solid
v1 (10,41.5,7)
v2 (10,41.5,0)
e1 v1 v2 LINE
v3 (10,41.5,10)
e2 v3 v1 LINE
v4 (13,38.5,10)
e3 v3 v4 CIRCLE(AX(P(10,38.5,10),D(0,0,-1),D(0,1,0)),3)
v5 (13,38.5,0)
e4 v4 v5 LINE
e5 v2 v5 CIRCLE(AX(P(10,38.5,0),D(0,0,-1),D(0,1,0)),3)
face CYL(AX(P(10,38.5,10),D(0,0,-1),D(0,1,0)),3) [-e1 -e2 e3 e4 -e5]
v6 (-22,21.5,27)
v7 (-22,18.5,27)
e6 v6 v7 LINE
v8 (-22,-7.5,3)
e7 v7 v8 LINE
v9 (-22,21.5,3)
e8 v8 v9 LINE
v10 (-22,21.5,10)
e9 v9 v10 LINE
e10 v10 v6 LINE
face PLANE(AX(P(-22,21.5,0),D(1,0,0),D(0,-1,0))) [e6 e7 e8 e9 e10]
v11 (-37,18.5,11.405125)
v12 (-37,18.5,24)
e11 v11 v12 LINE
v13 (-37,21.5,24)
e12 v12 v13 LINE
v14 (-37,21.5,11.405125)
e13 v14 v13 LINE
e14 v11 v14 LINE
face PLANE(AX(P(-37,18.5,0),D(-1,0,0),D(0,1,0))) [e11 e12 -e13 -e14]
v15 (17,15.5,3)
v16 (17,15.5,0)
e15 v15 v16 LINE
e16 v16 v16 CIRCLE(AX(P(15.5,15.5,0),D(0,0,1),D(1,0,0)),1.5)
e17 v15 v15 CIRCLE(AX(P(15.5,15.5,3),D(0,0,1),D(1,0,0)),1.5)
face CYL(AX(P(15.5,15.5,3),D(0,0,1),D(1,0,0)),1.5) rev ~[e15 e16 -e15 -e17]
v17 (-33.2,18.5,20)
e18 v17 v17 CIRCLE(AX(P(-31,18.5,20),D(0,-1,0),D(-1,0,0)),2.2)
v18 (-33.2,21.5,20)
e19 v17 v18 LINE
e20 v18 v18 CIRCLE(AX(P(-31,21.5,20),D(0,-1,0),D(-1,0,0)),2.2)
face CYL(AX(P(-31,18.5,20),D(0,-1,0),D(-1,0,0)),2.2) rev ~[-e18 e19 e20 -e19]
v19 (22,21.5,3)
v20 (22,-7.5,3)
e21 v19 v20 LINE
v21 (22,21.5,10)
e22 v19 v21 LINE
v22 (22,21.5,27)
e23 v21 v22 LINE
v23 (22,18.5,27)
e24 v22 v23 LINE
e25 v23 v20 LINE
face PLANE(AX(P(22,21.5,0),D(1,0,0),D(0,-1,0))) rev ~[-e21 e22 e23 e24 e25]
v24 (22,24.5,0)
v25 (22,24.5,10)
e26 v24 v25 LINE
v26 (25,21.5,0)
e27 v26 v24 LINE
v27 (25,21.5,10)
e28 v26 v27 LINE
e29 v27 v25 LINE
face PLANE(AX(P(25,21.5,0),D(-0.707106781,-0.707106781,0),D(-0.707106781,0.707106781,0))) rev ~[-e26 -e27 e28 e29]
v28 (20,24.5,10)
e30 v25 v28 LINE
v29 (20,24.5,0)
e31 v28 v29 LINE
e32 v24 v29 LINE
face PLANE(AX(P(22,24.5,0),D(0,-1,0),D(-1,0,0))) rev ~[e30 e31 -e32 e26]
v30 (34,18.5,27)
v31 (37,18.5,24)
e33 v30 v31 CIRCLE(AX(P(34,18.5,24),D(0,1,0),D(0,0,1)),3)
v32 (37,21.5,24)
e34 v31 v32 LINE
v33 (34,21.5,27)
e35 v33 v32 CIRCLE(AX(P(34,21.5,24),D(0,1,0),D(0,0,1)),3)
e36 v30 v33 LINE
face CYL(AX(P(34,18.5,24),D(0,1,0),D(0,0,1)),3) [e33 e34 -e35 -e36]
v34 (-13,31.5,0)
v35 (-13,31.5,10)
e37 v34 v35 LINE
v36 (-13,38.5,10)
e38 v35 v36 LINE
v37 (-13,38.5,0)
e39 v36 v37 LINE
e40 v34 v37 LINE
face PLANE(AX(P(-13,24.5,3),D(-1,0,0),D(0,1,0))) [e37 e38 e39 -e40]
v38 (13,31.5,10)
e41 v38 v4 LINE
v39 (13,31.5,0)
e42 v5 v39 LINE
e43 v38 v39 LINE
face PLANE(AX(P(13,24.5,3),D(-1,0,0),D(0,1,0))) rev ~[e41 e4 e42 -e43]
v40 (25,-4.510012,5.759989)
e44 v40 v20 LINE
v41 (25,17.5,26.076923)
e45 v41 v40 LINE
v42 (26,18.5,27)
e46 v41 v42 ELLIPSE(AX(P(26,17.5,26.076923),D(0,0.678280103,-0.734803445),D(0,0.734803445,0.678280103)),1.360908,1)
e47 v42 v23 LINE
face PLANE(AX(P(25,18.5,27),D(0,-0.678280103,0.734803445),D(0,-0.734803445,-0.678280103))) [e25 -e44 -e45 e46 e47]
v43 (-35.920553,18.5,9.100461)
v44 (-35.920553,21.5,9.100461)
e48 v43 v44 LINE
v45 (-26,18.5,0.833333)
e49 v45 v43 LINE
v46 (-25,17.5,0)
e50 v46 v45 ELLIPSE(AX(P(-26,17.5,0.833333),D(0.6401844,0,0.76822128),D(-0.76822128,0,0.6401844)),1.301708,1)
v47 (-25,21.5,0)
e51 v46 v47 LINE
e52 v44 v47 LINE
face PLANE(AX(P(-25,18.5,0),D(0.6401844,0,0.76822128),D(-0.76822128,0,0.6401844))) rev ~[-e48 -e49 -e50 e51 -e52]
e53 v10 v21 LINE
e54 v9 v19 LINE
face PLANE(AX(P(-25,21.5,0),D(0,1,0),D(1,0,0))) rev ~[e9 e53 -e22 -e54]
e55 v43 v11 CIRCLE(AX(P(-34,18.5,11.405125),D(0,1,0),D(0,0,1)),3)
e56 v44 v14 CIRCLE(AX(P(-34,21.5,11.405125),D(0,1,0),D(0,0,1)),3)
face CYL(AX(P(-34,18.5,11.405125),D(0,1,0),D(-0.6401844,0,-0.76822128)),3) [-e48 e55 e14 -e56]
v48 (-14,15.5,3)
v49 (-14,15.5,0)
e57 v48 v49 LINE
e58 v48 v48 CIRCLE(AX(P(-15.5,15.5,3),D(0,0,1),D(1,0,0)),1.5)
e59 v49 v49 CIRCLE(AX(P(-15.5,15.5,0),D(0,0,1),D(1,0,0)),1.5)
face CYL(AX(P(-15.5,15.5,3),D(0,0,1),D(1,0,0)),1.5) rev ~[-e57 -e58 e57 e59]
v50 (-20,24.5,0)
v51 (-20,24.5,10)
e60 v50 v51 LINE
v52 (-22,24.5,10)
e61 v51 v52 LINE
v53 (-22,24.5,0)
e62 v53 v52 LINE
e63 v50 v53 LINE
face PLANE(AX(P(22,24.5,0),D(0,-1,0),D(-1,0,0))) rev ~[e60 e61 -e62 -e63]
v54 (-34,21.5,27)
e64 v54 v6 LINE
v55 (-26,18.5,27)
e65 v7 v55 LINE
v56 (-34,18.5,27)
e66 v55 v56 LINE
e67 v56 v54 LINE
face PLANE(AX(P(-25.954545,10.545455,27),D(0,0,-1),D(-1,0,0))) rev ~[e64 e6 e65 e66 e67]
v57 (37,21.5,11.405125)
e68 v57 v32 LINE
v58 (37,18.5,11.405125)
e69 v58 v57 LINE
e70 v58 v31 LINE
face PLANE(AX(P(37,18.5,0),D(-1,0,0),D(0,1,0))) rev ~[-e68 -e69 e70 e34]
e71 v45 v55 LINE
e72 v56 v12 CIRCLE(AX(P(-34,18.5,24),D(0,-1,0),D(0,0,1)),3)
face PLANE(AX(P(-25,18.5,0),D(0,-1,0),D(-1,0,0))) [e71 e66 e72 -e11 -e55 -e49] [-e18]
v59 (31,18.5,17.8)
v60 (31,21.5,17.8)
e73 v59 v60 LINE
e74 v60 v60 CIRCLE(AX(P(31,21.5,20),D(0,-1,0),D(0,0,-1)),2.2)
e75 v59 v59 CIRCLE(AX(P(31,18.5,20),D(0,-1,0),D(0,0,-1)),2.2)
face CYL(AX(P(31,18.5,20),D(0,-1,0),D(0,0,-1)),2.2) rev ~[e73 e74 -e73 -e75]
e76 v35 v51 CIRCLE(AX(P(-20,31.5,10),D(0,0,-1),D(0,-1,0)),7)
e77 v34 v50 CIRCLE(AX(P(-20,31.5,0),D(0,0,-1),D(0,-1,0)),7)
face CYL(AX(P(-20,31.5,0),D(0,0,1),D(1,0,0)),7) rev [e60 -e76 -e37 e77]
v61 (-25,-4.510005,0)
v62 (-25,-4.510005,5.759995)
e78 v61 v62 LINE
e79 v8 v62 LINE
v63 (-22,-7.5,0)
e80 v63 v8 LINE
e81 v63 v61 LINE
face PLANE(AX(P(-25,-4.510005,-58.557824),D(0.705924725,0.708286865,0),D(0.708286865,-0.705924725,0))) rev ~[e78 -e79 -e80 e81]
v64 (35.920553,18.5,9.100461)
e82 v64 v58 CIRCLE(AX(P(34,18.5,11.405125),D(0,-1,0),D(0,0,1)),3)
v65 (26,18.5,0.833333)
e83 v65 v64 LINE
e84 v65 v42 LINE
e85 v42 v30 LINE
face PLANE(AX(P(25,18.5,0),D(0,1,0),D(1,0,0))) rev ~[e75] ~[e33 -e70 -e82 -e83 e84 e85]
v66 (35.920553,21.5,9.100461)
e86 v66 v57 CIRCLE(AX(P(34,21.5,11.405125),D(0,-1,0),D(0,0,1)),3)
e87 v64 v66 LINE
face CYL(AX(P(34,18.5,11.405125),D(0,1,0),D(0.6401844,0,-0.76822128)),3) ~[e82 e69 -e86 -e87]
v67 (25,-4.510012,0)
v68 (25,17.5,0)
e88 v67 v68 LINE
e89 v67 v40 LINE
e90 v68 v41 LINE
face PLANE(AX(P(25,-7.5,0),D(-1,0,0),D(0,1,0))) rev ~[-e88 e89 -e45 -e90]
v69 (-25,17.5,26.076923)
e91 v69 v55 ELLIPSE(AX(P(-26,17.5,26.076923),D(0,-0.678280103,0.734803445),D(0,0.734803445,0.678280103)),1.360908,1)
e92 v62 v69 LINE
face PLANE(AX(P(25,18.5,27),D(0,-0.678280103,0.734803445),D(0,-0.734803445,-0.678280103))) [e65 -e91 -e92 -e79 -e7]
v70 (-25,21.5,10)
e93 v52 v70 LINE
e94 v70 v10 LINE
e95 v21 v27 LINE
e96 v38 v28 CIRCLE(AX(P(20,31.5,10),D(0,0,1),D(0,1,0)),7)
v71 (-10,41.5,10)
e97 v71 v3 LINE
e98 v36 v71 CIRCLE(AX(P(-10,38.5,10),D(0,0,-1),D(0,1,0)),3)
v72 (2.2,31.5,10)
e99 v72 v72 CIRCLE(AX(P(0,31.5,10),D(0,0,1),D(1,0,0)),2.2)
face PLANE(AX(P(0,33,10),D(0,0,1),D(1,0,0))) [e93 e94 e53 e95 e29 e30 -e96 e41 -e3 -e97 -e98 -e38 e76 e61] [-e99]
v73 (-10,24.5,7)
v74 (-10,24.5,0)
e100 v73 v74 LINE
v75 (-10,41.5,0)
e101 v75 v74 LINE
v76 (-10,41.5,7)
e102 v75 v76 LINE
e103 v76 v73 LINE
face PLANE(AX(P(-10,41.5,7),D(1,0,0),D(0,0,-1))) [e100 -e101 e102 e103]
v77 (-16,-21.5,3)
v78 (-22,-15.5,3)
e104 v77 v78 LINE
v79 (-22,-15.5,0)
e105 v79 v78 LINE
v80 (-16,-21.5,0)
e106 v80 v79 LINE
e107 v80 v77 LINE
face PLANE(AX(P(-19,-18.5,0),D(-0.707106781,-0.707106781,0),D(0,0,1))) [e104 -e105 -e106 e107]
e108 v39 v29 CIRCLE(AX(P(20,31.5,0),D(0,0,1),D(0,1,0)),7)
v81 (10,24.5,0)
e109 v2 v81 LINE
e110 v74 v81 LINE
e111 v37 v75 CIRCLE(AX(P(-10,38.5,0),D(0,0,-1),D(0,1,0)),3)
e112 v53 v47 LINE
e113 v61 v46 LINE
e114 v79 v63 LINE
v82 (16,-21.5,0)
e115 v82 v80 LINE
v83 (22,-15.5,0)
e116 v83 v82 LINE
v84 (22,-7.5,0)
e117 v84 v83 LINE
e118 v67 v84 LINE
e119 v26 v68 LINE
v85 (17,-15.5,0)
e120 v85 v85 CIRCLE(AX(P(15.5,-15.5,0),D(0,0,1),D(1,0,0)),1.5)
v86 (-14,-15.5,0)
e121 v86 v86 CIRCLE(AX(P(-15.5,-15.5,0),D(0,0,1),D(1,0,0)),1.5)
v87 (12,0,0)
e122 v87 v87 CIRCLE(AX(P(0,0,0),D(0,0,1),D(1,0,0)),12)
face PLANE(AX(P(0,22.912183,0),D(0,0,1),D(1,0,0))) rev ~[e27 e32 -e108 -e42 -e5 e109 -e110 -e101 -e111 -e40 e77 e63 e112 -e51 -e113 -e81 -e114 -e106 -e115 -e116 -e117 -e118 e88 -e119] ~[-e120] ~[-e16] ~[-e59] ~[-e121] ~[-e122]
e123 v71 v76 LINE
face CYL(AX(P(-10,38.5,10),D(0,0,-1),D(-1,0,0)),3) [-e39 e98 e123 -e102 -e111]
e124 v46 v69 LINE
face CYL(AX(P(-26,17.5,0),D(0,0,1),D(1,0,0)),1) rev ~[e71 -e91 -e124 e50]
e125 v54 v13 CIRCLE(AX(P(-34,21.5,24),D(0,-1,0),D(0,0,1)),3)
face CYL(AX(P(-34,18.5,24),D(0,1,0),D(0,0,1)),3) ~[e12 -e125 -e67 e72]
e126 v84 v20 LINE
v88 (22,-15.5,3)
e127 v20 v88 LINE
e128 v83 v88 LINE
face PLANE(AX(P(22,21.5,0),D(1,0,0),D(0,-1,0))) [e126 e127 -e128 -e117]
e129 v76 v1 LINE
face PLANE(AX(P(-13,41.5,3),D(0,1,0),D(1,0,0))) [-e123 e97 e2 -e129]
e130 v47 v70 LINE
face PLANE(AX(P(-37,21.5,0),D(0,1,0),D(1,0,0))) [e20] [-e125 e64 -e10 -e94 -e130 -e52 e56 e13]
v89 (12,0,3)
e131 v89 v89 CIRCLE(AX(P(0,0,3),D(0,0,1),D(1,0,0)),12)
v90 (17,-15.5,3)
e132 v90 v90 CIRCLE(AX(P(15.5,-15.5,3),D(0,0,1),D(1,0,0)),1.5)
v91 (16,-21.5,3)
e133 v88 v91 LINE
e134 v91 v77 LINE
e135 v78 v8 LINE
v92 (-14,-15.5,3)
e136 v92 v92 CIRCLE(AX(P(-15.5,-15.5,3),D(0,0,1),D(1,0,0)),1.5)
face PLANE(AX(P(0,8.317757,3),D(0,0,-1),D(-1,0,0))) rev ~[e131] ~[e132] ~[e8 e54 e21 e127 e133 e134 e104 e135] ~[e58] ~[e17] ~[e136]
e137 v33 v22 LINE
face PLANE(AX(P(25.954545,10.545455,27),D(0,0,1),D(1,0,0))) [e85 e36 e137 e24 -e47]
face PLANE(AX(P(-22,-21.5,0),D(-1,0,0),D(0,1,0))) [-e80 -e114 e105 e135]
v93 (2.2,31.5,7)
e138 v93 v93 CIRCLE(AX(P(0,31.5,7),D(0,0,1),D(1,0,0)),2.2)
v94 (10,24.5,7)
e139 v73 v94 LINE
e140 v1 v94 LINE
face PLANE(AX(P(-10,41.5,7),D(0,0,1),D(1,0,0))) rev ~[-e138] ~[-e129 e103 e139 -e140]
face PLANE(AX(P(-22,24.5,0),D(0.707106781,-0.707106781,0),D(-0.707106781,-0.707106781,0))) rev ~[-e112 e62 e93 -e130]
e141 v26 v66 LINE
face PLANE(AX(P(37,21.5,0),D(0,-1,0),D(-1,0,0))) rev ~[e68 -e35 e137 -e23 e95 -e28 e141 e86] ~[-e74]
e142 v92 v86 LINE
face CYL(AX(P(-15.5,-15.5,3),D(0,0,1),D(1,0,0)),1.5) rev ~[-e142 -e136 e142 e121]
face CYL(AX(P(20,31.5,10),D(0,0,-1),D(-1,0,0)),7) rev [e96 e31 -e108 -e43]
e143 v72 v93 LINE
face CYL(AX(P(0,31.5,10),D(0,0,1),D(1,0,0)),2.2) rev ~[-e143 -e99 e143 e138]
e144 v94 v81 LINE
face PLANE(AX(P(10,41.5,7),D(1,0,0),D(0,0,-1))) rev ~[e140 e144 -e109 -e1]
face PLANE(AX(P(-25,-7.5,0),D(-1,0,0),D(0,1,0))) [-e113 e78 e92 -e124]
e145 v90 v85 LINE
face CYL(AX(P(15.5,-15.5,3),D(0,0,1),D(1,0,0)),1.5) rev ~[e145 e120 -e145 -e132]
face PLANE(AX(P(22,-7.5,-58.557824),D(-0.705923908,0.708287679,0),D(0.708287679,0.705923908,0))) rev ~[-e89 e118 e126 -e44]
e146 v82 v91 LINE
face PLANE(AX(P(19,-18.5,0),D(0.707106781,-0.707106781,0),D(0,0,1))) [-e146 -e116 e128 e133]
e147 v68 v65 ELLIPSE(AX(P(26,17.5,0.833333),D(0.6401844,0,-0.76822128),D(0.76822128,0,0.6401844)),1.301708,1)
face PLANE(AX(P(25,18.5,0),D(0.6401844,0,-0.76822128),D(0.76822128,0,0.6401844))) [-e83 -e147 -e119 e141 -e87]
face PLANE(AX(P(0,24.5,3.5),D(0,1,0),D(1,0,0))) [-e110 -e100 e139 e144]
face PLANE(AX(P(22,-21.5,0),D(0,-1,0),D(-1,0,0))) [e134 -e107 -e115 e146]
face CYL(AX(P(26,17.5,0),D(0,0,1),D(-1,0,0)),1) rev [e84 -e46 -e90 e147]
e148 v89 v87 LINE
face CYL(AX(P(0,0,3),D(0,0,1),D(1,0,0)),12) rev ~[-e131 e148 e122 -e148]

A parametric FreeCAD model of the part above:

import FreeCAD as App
import Part
import Sketcher
Q = App.Units.Quantity


def edges_at(feature, points):
    """Names of the edges that pass closest to the given points."""
    edges = feature.Shape.Edges
    near = lambda p: min(range(len(edges)), key=lambda i: edges[i].distToShape(Part.Vertex(*p))[0])
    return sorted({f"Edge{near(p) + 1}" for p in points})

doc = App.newDocument("Part")
params = doc.addObject("Spreadsheet::Sheet", "Params")
for row, (alias, value) in enumerate([
    ("sketch1_width", "9 mm"),
    ("sketch1_width2", "44 mm"),
    ("sketch1_height", "20 mm"),
    ("sketch1_height2", "43 mm"),
    ("pad1_length", "3 mm"),
    ("sketch2_width", "15 mm"),
    ("sketch2_width2", "3 mm"),
    ("sketch2_height", "29 mm"),
    ("pad2_length", "27 mm"),
    ("sketch3_width", "12 mm"),
    ("sketch3_width2", "3 mm"),
    ("sketch3_height", "26 mm"),
    ("pad3_length", "27 mm"),
    ("sketch4_width", "50 mm"),
    ("sketch4_width2", "44 mm"),
    ("pad4_length", "10 mm"),
    ("sketch5_width", "26 mm"),
    ("sketch5_height", "17 mm"),
    ("pad5_length", "7 mm"),
    ("sketch6_width", "26 mm"),
    ("sketch6_height", "24 mm"),
    ("sketch7_diameter", "4.4 mm"),
    ("sketch7_width", "12 mm"),
    ("sketch7_height", "10 mm"),
    ("sketch8_width", "20 mm"),
    ("sketch8_height", "7 mm"),
    ("pocket3_length", "17 mm"),
    ("sketch9_diameter", "24 mm"),
    ("sketch9_diameter2", "3 mm"),
    ("sketch10_diameter", "4.4 mm"),
    ("fillet_radius", "7 mm"),
    ("fillet2_radius", "3 mm"),
    ("chamfer_size", "6 mm"),
    ("sketch11_width", "3 mm"),
    ("fillet3_radius", "1 mm"),
], start=1):
    params.set(f"A{row}", alias)
    params.set(f"B{row}", "=" + value)
    params.setAlias(f"B{row}", alias)

body = doc.addObject("PartDesign::Body", "Body")

# Sketch on XY plane
sketch1 = doc.addObject("Sketcher::SketchObject", "Sketch")
body.addObject(sketch1)
sketch1.AttachmentSupport = (doc.XY_Plane, [""])
sketch1.MapMode = "FlatFace"
sketch1.addGeometry(Part.LineSegment(App.Vector(-13, 42, 0), App.Vector(-13, 22, 0)), False)
sketch1.addGeometry(Part.LineSegment(App.Vector(-13, 22, 0), App.Vector(-22, 22, 0)), False)
sketch1.addGeometry(Part.LineSegment(App.Vector(-22, 22, 0), App.Vector(-22, -22, 0)), False)
sketch1.addGeometry(Part.LineSegment(App.Vector(-22, -22, 0), App.Vector(22, -22, 0)), False)
sketch1.addGeometry(Part.LineSegment(App.Vector(22, -22, 0), App.Vector(22, 22, 0)), False)
sketch1.addGeometry(Part.LineSegment(App.Vector(22, 22, 0), App.Vector(13, 22, 0)), False)
sketch1.addGeometry(Part.LineSegment(App.Vector(13, 22, 0), App.Vector(13, 42, 0)), False)
sketch1.addGeometry(Part.LineSegment(App.Vector(13, 42, 0), App.Vector(-13, 42, 0)), False)
sketch1.addConstraint(Sketcher.Constraint("Coincident", 0, 2, 1, 1))
sketch1.addConstraint(Sketcher.Constraint("Coincident", 1, 2, 2, 1))
sketch1.addConstraint(Sketcher.Constraint("Coincident", 2, 2, 3, 1))
sketch1.addConstraint(Sketcher.Constraint("Coincident", 3, 2, 4, 1))
sketch1.addConstraint(Sketcher.Constraint("Coincident", 4, 2, 5, 1))
sketch1.addConstraint(Sketcher.Constraint("Coincident", 5, 2, 6, 1))
sketch1.addConstraint(Sketcher.Constraint("Coincident", 6, 2, 7, 1))
sketch1.addConstraint(Sketcher.Constraint("Coincident", 7, 2, 0, 1))
sketch1.addConstraint(Sketcher.Constraint("Vertical", 0))
sketch1.addConstraint(Sketcher.Constraint("Horizontal", 1))
sketch1.addConstraint(Sketcher.Constraint("Vertical", 2))
sketch1.addConstraint(Sketcher.Constraint("Horizontal", 3))
sketch1.addConstraint(Sketcher.Constraint("Vertical", 4))
sketch1.addConstraint(Sketcher.Constraint("Horizontal", 5))
sketch1.addConstraint(Sketcher.Constraint("Vertical", 6))
sketch1.addConstraint(Sketcher.Constraint("Horizontal", 7))
sketch1.addConstraint(Sketcher.Constraint("Symmetric", 1, 2, 3, 2, -1, 1))
sketch1.addConstraint(Sketcher.Constraint("Symmetric", 0, 2, 5, 2, -2))
sketch1.addConstraint(Sketcher.Constraint("DistanceX", 1, 2, 1, 1, Q("9 mm")))
sketch1.addConstraint(Sketcher.Constraint("DistanceX", 3, 1, 3, 2, Q("44 mm")))
sketch1.addConstraint(Sketcher.Constraint("DistanceY", 0, 2, 0, 1, Q("20 mm")))
sketch1.addConstraint(Sketcher.Constraint("DistanceY", 2, 2, 2, 1, Q("43 mm")))
sketch1.setExpression("Constraints[18]", "Params.sketch1_width")
sketch1.setExpression("Constraints[19]", "Params.sketch1_width2")
sketch1.setExpression("Constraints[20]", "Params.sketch1_height")
sketch1.setExpression("Constraints[21]", "Params.sketch1_height2")
pad1 = doc.addObject("PartDesign::Pad", "Pad")
body.addObject(pad1)
pad1.Profile = sketch1
pad1.setExpression("Length", "Params.pad1_length")
body2 = doc.addObject("PartDesign::Body", "Body001")

# Sketch on XY plane
sketch2 = doc.addObject("Sketcher::SketchObject", "Sketch001")
body2.addObject(sketch2)
sketch2.AttachmentSupport = (doc.getObject("XY_Plane001"), [""])
sketch2.MapMode = "FlatFace"
sketch2.addGeometry(Part.LineSegment(App.Vector(-37, 21.5, 0), App.Vector(-22, 21.5, 0)), False)
sketch2.addGeometry(Part.LineSegment(App.Vector(-22, 21.5, 0), App.Vector(-22, -7.5, 0)), False)
sketch2.addGeometry(Part.LineSegment(App.Vector(-22, -7.5, 0), App.Vector(-25, -7.5, 0)), False)
sketch2.addGeometry(Part.LineSegment(App.Vector(-25, -7.5, 0), App.Vector(-25, 18.5, 0)), False)
sketch2.addGeometry(Part.LineSegment(App.Vector(-25, 18.5, 0), App.Vector(-37, 18.5, 0)), False)
sketch2.addGeometry(Part.LineSegment(App.Vector(-37, 18.5, 0), App.Vector(-37, 21.5, 0)), False)
sketch2.addConstraint(Sketcher.Constraint("Coincident", 0, 2, 1, 1))
sketch2.addConstraint(Sketcher.Constraint("Coincident", 1, 2, 2, 1))
sketch2.addConstraint(Sketcher.Constraint("Coincident", 2, 2, 3, 1))
sketch2.addConstraint(Sketcher.Constraint("Coincident", 3, 2, 4, 1))
sketch2.addConstraint(Sketcher.Constraint("Coincident", 4, 2, 5, 1))
sketch2.addConstraint(Sketcher.Constraint("Coincident", 5, 2, 0, 1))
sketch2.addConstraint(Sketcher.Constraint("Horizontal", 0))
sketch2.addConstraint(Sketcher.Constraint("Vertical", 1))
sketch2.addConstraint(Sketcher.Constraint("Horizontal", 2))
sketch2.addConstraint(Sketcher.Constraint("Vertical", 3))
sketch2.addConstraint(Sketcher.Constraint("Horizontal", 4))
sketch2.addConstraint(Sketcher.Constraint("Vertical", 5))
sketch2.addConstraint(Sketcher.Constraint("Equal", 2, 5))
sketch2.addConstraint(Sketcher.Constraint("DistanceX", 0, 1, 0, 2, Q("15 mm")))
sketch2.addConstraint(Sketcher.Constraint("DistanceX", 2, 2, 2, 1, Q("3 mm")))
sketch2.addConstraint(Sketcher.Constraint("DistanceY", 1, 2, 1, 1, Q("29 mm")))
sketch2.addConstraint(Sketcher.Constraint("DistanceX", 0, 2, -1, 1, Q("22 mm")))
sketch2.addConstraint(Sketcher.Constraint("DistanceY", -1, 1, 0, 2, Q("21.5 mm")))
sketch2.setExpression("Constraints[13]", "Params.sketch2_width")
sketch2.setExpression("Constraints[14]", "Params.sketch2_width2")
sketch2.setExpression("Constraints[15]", "Params.sketch2_height")
pad2 = doc.addObject("PartDesign::Pad", "Pad001")
body2.addObject(pad2)
pad2.Profile = sketch2
pad2.setExpression("Length", "Params.pad2_length")
body3 = doc.addObject("PartDesign::Body", "Body002")

# Sketch on XY plane
sketch3 = doc.addObject("Sketcher::SketchObject", "Sketch002")
body3.addObject(sketch3)
sketch3.AttachmentSupport = (doc.getObject("XY_Plane002"), [""])
sketch3.MapMode = "FlatFace"
sketch3.addGeometry(Part.LineSegment(App.Vector(37, 21.5, 0), App.Vector(37, 18.5, 0)), False)
sketch3.addGeometry(Part.LineSegment(App.Vector(37, 18.5, 0), App.Vector(25, 18.5, 0)), False)
sketch3.addGeometry(Part.LineSegment(App.Vector(25, 18.5, 0), App.Vector(25, -7.5, 0)), False)
sketch3.addGeometry(Part.LineSegment(App.Vector(25, -7.5, 0), App.Vector(22, -7.5, 0)), False)
sketch3.addGeometry(Part.LineSegment(App.Vector(22, -7.5, 0), App.Vector(22, 21.5, 0)), False)
sketch3.addGeometry(Part.LineSegment(App.Vector(22, 21.5, 0), App.Vector(37, 21.5, 0)), False)
sketch3.addConstraint(Sketcher.Constraint("Coincident", 0, 2, 1, 1))
sketch3.addConstraint(Sketcher.Constraint("Coincident", 1, 2, 2, 1))
sketch3.addConstraint(Sketcher.Constraint("Coincident", 2, 2, 3, 1))
sketch3.addConstraint(Sketcher.Constraint("Coincident", 3, 2, 4, 1))
sketch3.addConstraint(Sketcher.Constraint("Coincident", 4, 2, 5, 1))
sketch3.addConstraint(Sketcher.Constraint("Coincident", 5, 2, 0, 1))
sketch3.addConstraint(Sketcher.Constraint("Vertical", 0))
sketch3.addConstraint(Sketcher.Constraint("Horizontal", 1))
sketch3.addConstraint(Sketcher.Constraint("Vertical", 2))
sketch3.addConstraint(Sketcher.Constraint("Horizontal", 3))
sketch3.addConstraint(Sketcher.Constraint("Vertical", 4))
sketch3.addConstraint(Sketcher.Constraint("Horizontal", 5))
sketch3.addConstraint(Sketcher.Constraint("Equal", 3, 0))
sketch3.addConstraint(Sketcher.Constraint("DistanceX", 1, 2, 1, 1, Q("12 mm")))
sketch3.addConstraint(Sketcher.Constraint("DistanceX", 3, 2, 3, 1, Q("3 mm")))
sketch3.addConstraint(Sketcher.Constraint("DistanceY", 2, 2, 2, 1, Q("26 mm")))
sketch3.addConstraint(Sketcher.Constraint("DistanceX", -1, 1, 0, 2, Q("37 mm")))
sketch3.addConstraint(Sketcher.Constraint("DistanceY", -1, 1, 0, 2, Q("18.5 mm")))
sketch3.setExpression("Constraints[13]", "Params.sketch3_width")
sketch3.setExpression("Constraints[14]", "Params.sketch3_width2")
sketch3.setExpression("Constraints[15]", "Params.sketch3_height")
pad3 = doc.addObject("PartDesign::Pad", "Pad002")
body3.addObject(pad3)
pad3.Profile = sketch3
pad3.setExpression("Length", "Params.pad3_length")
doc.recompute()

boolean = doc.addObject("PartDesign::Boolean", "Boolean")
body.addObject(boolean)
boolean.Type = "Fuse"
boolean.addObjects([body2])
doc.recompute()

boolean2 = doc.addObject("PartDesign::Boolean", "Boolean001")
body.addObject(boolean2)
boolean2.Type = "Fuse"
boolean2.addObjects([body3])

# Sketch on XY plane
sketch4 = doc.addObject("Sketcher::SketchObject", "Sketch003")
body.addObject(sketch4)
sketch4.AttachmentSupport = (doc.XY_Plane, [""])
sketch4.MapMode = "FlatFace"
sketch4.addGeometry(Part.LineSegment(App.Vector(22, 24.5, 0), App.Vector(25, 21.5, 0)), False)
sketch4.addGeometry(Part.LineSegment(App.Vector(25, 21.5, 0), App.Vector(-25, 21.5, 0)), False)
sketch4.addGeometry(Part.LineSegment(App.Vector(-25, 21.5, 0), App.Vector(-22, 24.5, 0)), False)
sketch4.addGeometry(Part.LineSegment(App.Vector(-22, 24.5, 0), App.Vector(22, 24.5, 0)), False)
sketch4.addConstraint(Sketcher.Constraint("Coincident", 0, 2, 1, 1))
sketch4.addConstraint(Sketcher.Constraint("Coincident", 1, 2, 2, 1))
sketch4.addConstraint(Sketcher.Constraint("Coincident", 2, 2, 3, 1))
sketch4.addConstraint(Sketcher.Constraint("Coincident", 3, 2, 0, 1))
sketch4.addConstraint(Sketcher.Constraint("Horizontal", 1))
sketch4.addConstraint(Sketcher.Constraint("Horizontal", 3))
sketch4.addConstraint(Sketcher.Constraint("Perpendicular", 0, 2))
sketch4.addConstraint(Sketcher.Constraint("Equal", 0, 2))
sketch4.addConstraint(Sketcher.Constraint("DistanceX", 1, 2, 1, 1, Q("50 mm")))
sketch4.addConstraint(Sketcher.Constraint("DistanceX", 3, 1, 3, 2, Q("44 mm")))
sketch4.addConstraint(Sketcher.Constraint("DistanceX", -1, 1, 0, 2, Q("25 mm")))
sketch4.addConstraint(Sketcher.Constraint("DistanceY", -1, 1, 0, 2, Q("21.5 mm")))
sketch4.setExpression("Constraints[8]", "Params.sketch4_width")
sketch4.setExpression("Constraints[9]", "Params.sketch4_width2")
pad4 = doc.addObject("PartDesign::Pad", "Pad003")
body.addObject(pad4)
pad4.Profile = sketch4
pad4.setExpression("Length", "Params.pad4_length")

# Sketch on XY plane
sketch5 = doc.addObject("Sketcher::SketchObject", "Sketch004")
body.addObject(sketch5)
sketch5.AttachmentSupport = (doc.XY_Plane, [""])
sketch5.MapMode = "FlatFace"
sketch5.AttachmentOffset = App.Placement(App.Vector(0, 0, 3), App.Rotation())
sketch5.addGeometry(Part.LineSegment(App.Vector(-13, 42, 0), App.Vector(-13, 24, 0)), False)
sketch5.addGeometry(Part.LineSegment(App.Vector(-13, 24, 0), App.Vector(13, 24, 0)), False)
sketch5.addGeometry(Part.LineSegment(App.Vector(13, 24, 0), App.Vector(13, 42, 0)), False)
sketch5.addGeometry(Part.LineSegment(App.Vector(13, 42, 0), App.Vector(-13, 42, 0)), False)
sketch5.addConstraint(Sketcher.Constraint("Coincident", 0, 2, 1, 1))
sketch5.addConstraint(Sketcher.Constraint("Coincident", 1, 2, 2, 1))
sketch5.addConstraint(Sketcher.Constraint("Coincident", 2, 2, 3, 1))
sketch5.addConstraint(Sketcher.Constraint("Coincident", 3, 2, 0, 1))
sketch5.addConstraint(Sketcher.Constraint("Vertical", 0))
sketch5.addConstraint(Sketcher.Constraint("Horizontal", 1))
sketch5.addConstraint(Sketcher.Constraint("Vertical", 2))
sketch5.addConstraint(Sketcher.Constraint("Horizontal", 3))
sketch5.addConstraint(Sketcher.Constraint("DistanceX", 1, 1, 1, 2, Q("26 mm")))
sketch5.addConstraint(Sketcher.Constraint("DistanceY", 0, 2, 0, 1, Q("17 mm")))
sketch5.addConstraint(Sketcher.Constraint("DistanceX", 0, 2, -1, 1, Q("13 mm")))
sketch5.addConstraint(Sketcher.Constraint("DistanceY", -1, 1, 0, 2, Q("24.5 mm")))
sketch5.setExpression("Constraints[8]", "Params.sketch5_width")
sketch5.setExpression("Constraints[9]", "Params.sketch5_height")
pad5 = doc.addObject("PartDesign::Pad", "Pad004")
body.addObject(pad5)
pad5.Profile = sketch5
pad5.setExpression("Length", "Params.pad5_length")

# Sketch on YZ plane
sketch6 = doc.addObject("Sketcher::SketchObject", "Sketch005")
body.addObject(sketch6)
sketch6.AttachmentSupport = (doc.YZ_Plane, [""])
sketch6.MapMode = "FlatFace"
sketch6.AttachmentOffset = App.Placement(App.Vector(0, 0, 25), App.Rotation())
sketch6.addGeometry(Part.LineSegment(App.Vector(-8, 3, 0), App.Vector(18, 27, 0)), False)
sketch6.addGeometry(Part.LineSegment(App.Vector(18, 27, 0), App.Vector(-8, 27, 0)), False)
sketch6.addGeometry(Part.LineSegment(App.Vector(-8, 27, 0), App.Vector(-8, 3, 0)), False)
sketch6.addConstraint(Sketcher.Constraint("Coincident", 0, 2, 1, 1))
sketch6.addConstraint(Sketcher.Constraint("Coincident", 1, 2, 2, 1))
sketch6.addConstraint(Sketcher.Constraint("Coincident", 2, 2, 0, 1))
sketch6.addConstraint(Sketcher.Constraint("Horizontal", 1))
sketch6.addConstraint(Sketcher.Constraint("Vertical", 2))
sketch6.addConstraint(Sketcher.Constraint("DistanceX", 1, 2, 1, 1, Q("26 mm")))
sketch6.addConstraint(Sketcher.Constraint("DistanceY", 2, 2, 2, 1, Q("24 mm")))
sketch6.addConstraint(Sketcher.Constraint("DistanceY", -1, 1, 0, 2, Q("27 mm")))
sketch6.addConstraint(Sketcher.Constraint("DistanceX", -1, 1, 0, 2, Q("18.5 mm")))
sketch6.setExpression("Constraints[5]", "Params.sketch6_width")
sketch6.setExpression("Constraints[6]", "Params.sketch6_height")
pocket1 = doc.addObject("PartDesign::Pocket", "Pocket")
body.addObject(pocket1)
pocket1.Profile = sketch6
pocket1.Type = "ThroughAll"

# Sketch on XZ plane
sketch7 = doc.addObject("Sketcher::SketchObject", "Sketch006")
body.addObject(sketch7)
sketch7.AttachmentSupport = (doc.XZ_Plane, [""])
sketch7.MapMode = "FlatFace"
sketch7.AttachmentOffset = App.Placement(App.Vector(0, 0, -18.5), App.Rotation())
sketch7.addGeometry(Part.Circle(App.Vector(31, 20, 0), App.Vector(0, 0, 1), 2.2), False)
sketch7.addGeometry(Part.Circle(App.Vector(-31, 20, 0), App.Vector(0, 0, 1), 2.2), False)
sketch7.addGeometry(Part.LineSegment(App.Vector(37, 10, 0), App.Vector(25, 0, 0)), False)
sketch7.addGeometry(Part.LineSegment(App.Vector(25, 0, 0), App.Vector(37, 0, 0)), False)
sketch7.addGeometry(Part.LineSegment(App.Vector(37, 0, 0), App.Vector(37, 10, 0)), False)
sketch7.addGeometry(Part.LineSegment(App.Vector(-37, 0, 0), App.Vector(-25, 0, 0)), False)
sketch7.addGeometry(Part.LineSegment(App.Vector(-25, 0, 0), App.Vector(-37, 10, 0)), False)
sketch7.addGeometry(Part.LineSegment(App.Vector(-37, 10, 0), App.Vector(-37, 0, 0)), False)
sketch7.addConstraint(Sketcher.Constraint("Coincident", 2, 2, 3, 1))
sketch7.addConstraint(Sketcher.Constraint("Coincident", 3, 2, 4, 1))
sketch7.addConstraint(Sketcher.Constraint("Coincident", 4, 2, 2, 1))
sketch7.addConstraint(Sketcher.Constraint("Coincident", 5, 2, 6, 1))
sketch7.addConstraint(Sketcher.Constraint("Coincident", 6, 2, 7, 1))
sketch7.addConstraint(Sketcher.Constraint("Coincident", 7, 2, 5, 1))
sketch7.addConstraint(Sketcher.Constraint("Horizontal", 3))
sketch7.addConstraint(Sketcher.Constraint("Vertical", 4))
sketch7.addConstraint(Sketcher.Constraint("Horizontal", 5))
sketch7.addConstraint(Sketcher.Constraint("Vertical", 7))
sketch7.addConstraint(Sketcher.Constraint("Equal", 0, 1))
sketch7.addConstraint(Sketcher.Constraint("Symmetric", 2, 2, 5, 2, -1, 1))
sketch7.addConstraint(Sketcher.Constraint("Symmetric", 0, 3, 1, 3, -2))
sketch7.addConstraint(Sketcher.Constraint("Symmetric", 4, 2, 6, 2, -2))
sketch7.addConstraint(Sketcher.Constraint("PointOnObject", 2, 2, -1))
sketch7.addConstraint(Sketcher.Constraint("Diameter", 0, Q("4.4 mm")))
sketch7.addConstraint(Sketcher.Constraint("DistanceX", 3, 1, 3, 2, Q("12 mm")))
sketch7.addConstraint(Sketcher.Constraint("DistanceY", 4, 1, 4, 2, Q("10 mm")))
sketch7.addConstraint(Sketcher.Constraint("DistanceX", -1, 1, 0, 3, Q("31 mm")))
sketch7.addConstraint(Sketcher.Constraint("DistanceY", -1, 1, 0, 3, Q("20 mm")))
sketch7.addConstraint(Sketcher.Constraint("DistanceX", -1, 1, 2, 2, Q("25 mm")))
sketch7.setExpression("Constraints[15]", "Params.sketch7_diameter")
sketch7.setExpression("Constraints[16]", "Params.sketch7_width")
sketch7.setExpression("Constraints[17]", "Params.sketch7_height")
pocket2 = doc.addObject("PartDesign::Pocket", "Pocket001")
body.addObject(pocket2)
pocket2.Profile = sketch7
pocket2.Type = "ThroughAll"

# Sketch on XZ plane
sketch8 = doc.addObject("Sketcher::SketchObject", "Sketch007")
body.addObject(sketch8)
sketch8.AttachmentSupport = (doc.XZ_Plane, [""])
sketch8.MapMode = "FlatFace"
sketch8.AttachmentOffset = App.Placement(App.Vector(0, 0, -41.5), App.Rotation())
sketch8.addGeometry(Part.LineSegment(App.Vector(-10, 0, 0), App.Vector(-10, 7, 0)), False)
sketch8.addGeometry(Part.LineSegment(App.Vector(-10, 7, 0), App.Vector(10, 7, 0)), False)
sketch8.addGeometry(Part.LineSegment(App.Vector(10, 7, 0), App.Vector(10, 0, 0)), False)
sketch8.addGeometry(Part.LineSegment(App.Vector(10, 0, 0), App.Vector(-10, 0, 0)), False)
sketch8.addConstraint(Sketcher.Constraint("Coincident", 0, 2, 1, 1))
sketch8.addConstraint(Sketcher.Constraint("Coincident", 1, 2, 2, 1))
sketch8.addConstraint(Sketcher.Constraint("Coincident", 2, 2, 3, 1))
sketch8.addConstraint(Sketcher.Constraint("Coincident", 3, 2, 0, 1))
sketch8.addConstraint(Sketcher.Constraint("Vertical", 0))
sketch8.addConstraint(Sketcher.Constraint("Horizontal", 1))
sketch8.addConstraint(Sketcher.Constraint("Vertical", 2))
sketch8.addConstraint(Sketcher.Constraint("Horizontal", 3))
sketch8.addConstraint(Sketcher.Constraint("Symmetric", 2, 2, 3, 2, -1, 1))
sketch8.addConstraint(Sketcher.Constraint("DistanceX", 1, 1, 1, 2, Q("20 mm")))
sketch8.addConstraint(Sketcher.Constraint("DistanceY", 0, 1, 0, 2, Q("7 mm")))
sketch8.setExpression("Constraints[9]", "Params.sketch8_width")
sketch8.setExpression("Constraints[10]", "Params.sketch8_height")
pocket3 = doc.addObject("PartDesign::Pocket", "Pocket002")
body.addObject(pocket3)
pocket3.Profile = sketch8
pocket3.setExpression("Length", "Params.pocket3_length")
pocket3.Reversed = True

# Sketch on XY plane
sketch9 = doc.addObject("Sketcher::SketchObject", "Sketch008")
body.addObject(sketch9)
sketch9.AttachmentSupport = (doc.XY_Plane, [""])
sketch9.MapMode = "FlatFace"
sketch9.AttachmentOffset = App.Placement(App.Vector(0, 0, 3), App.Rotation())
sketch9.addGeometry(Part.Circle(App.Vector(0, 0, 0), App.Vector(0, 0, 1), 12), False)
sketch9.addGeometry(Part.Circle(App.Vector(-15.5, 15.5, 0), App.Vector(0, 0, 1), 1.5), False)
sketch9.addGeometry(Part.Circle(App.Vector(15.5, 15.5, 0), App.Vector(0, 0, 1), 1.5), False)
sketch9.addGeometry(Part.Circle(App.Vector(15.5, -15.5, 0), App.Vector(0, 0, 1), 1.5), False)
sketch9.addGeometry(Part.Circle(App.Vector(-15.5, -15.5, 0), App.Vector(0, 0, 1), 1.5), False)
sketch9.addConstraint(Sketcher.Constraint("Coincident", 0, 3, -1, 1))
sketch9.addConstraint(Sketcher.Constraint("Equal", 1, 2))
sketch9.addConstraint(Sketcher.Constraint("Equal", 2, 3))
sketch9.addConstraint(Sketcher.Constraint("Equal", 3, 4))
sketch9.addConstraint(Sketcher.Constraint("Symmetric", 1, 3, 3, 3, -1, 1))
sketch9.addConstraint(Sketcher.Constraint("Symmetric", 2, 3, 4, 3, -1, 1))
sketch9.addConstraint(Sketcher.Constraint("Symmetric", 1, 3, 2, 3, -2))
sketch9.addConstraint(Sketcher.Constraint("Diameter", 0, Q("24 mm")))
sketch9.addConstraint(Sketcher.Constraint("Diameter", 1, Q("3 mm")))
sketch9.addConstraint(Sketcher.Constraint("DistanceX", 1, 3, 2, 3, Q("31 mm")))
sketch9.addConstraint(Sketcher.Constraint("DistanceY", 3, 3, 2, 3, Q("31 mm")))
sketch9.setExpression("Constraints[7]", "Params.sketch9_diameter")
sketch9.setExpression("Constraints[8]", "Params.sketch9_diameter2")
pocket4 = doc.addObject("PartDesign::Pocket", "Pocket003")
body.addObject(pocket4)
pocket4.Profile = sketch9
pocket4.Type = "ThroughAll"

# Sketch on XY plane
sketch10 = doc.addObject("Sketcher::SketchObject", "Sketch009")
body.addObject(sketch10)
sketch10.AttachmentSupport = (doc.XY_Plane, [""])
sketch10.MapMode = "FlatFace"
sketch10.AttachmentOffset = App.Placement(App.Vector(0, 0, 10), App.Rotation())
sketch10.addGeometry(Part.Circle(App.Vector(0, 31.5, 0), App.Vector(0, 0, 1), 2.2), False)
sketch10.addConstraint(Sketcher.Constraint("PointOnObject", 0, 3, -2))
sketch10.addConstraint(Sketcher.Constraint("Diameter", 0, Q("4.4 mm")))
sketch10.addConstraint(Sketcher.Constraint("DistanceY", -1, 1, 0, 3, Q("31.5 mm")))
sketch10.setExpression("Constraints[1]", "Params.sketch10_diameter")
pocket5 = doc.addObject("PartDesign::Pocket", "Pocket004")
body.addObject(pocket5)
pocket5.Profile = sketch10
pocket5.Type = "ThroughAll"
doc.recompute()

fillet = doc.addObject("PartDesign::Fillet", "Fillet")
body.addObject(fillet)
fillet.Base = (pocket5, edges_at(pocket5, [(13, 24.5, 5), (-13, 24.5, 5)]))
fillet.setExpression("Radius", "Params.fillet_radius")
doc.recompute()

fillet2 = doc.addObject("PartDesign::Fillet", "Fillet001")
body.addObject(fillet2)
fillet2.Base = (fillet, edges_at(fillet, [
    (13, 41.5, 5),
    (-13, 41.5, 5),
    (-37, 20, 10),
    (37, 20, 10),
    (-37, 20, 27),
    (37, 20, 27),
]))
fillet2.setExpression("Radius", "Params.fillet2_radius")
doc.recompute()

chamfer = doc.addObject("PartDesign::Chamfer", "Chamfer")
body.addObject(chamfer)
chamfer.Base = (fillet2, edges_at(fillet2, [(22, -21.5, 1.5), (-22, -21.5, 1.5)]))
chamfer.setExpression("Size", "Params.chamfer_size")

# Sketch on XY plane
sketch11 = doc.addObject("Sketcher::SketchObject", "Sketch010")
body.addObject(sketch11)
sketch11.AttachmentSupport = (doc.XY_Plane, [""])
sketch11.MapMode = "FlatFace"
sketch11.AttachmentOffset = App.Placement(App.Vector(0, 0, 3), App.Rotation())
sketch11.addGeometry(Part.LineSegment(App.Vector(25, -4.5, 0), App.Vector(22, -7.5, 0)), False)
sketch11.addGeometry(Part.LineSegment(App.Vector(22, -7.5, 0), App.Vector(25, -7.5, 0)), False)
sketch11.addGeometry(Part.LineSegment(App.Vector(25, -7.5, 0), App.Vector(25, -4.5, 0)), False)
sketch11.addGeometry(Part.LineSegment(App.Vector(-25, -7.5, 0), App.Vector(-22, -7.5, 0)), False)
sketch11.addGeometry(Part.LineSegment(App.Vector(-22, -7.5, 0), App.Vector(-25, -4.5, 0)), False)
sketch11.addGeometry(Part.LineSegment(App.Vector(-25, -4.5, 0), App.Vector(-25, -7.5, 0)), False)
sketch11.addConstraint(Sketcher.Constraint("Coincident", 0, 2, 1, 1))
sketch11.addConstraint(Sketcher.Constraint("Coincident", 1, 2, 2, 1))
sketch11.addConstraint(Sketcher.Constraint("Coincident", 2, 2, 0, 1))
sketch11.addConstraint(Sketcher.Constraint("Coincident", 3, 2, 4, 1))
sketch11.addConstraint(Sketcher.Constraint("Coincident", 4, 2, 5, 1))
sketch11.addConstraint(Sketcher.Constraint("Coincident", 5, 2, 3, 1))
sketch11.addConstraint(Sketcher.Constraint("Horizontal", 1))
sketch11.addConstraint(Sketcher.Constraint("Vertical", 2))
sketch11.addConstraint(Sketcher.Constraint("Horizontal", 3))
sketch11.addConstraint(Sketcher.Constraint("Vertical", 5))
sketch11.addConstraint(Sketcher.Constraint("Symmetric", 0, 2, 3, 2, -2))
sketch11.addConstraint(Sketcher.Constraint("Symmetric", 2, 2, 4, 2, -2))
sketch11.addConstraint(Sketcher.Constraint("DistanceX", 1, 1, 1, 2, Q("3 mm")))
sketch11.addConstraint(Sketcher.Constraint("DistanceX", -1, 1, 0, 2, Q("22 mm")))
sketch11.addConstraint(Sketcher.Constraint("DistanceY", 0, 2, -1, 1, Q("7.5 mm")))
sketch11.addConstraint(Sketcher.Constraint("DistanceY", 2, 1, 2, 2, Q("2.989988 mm")))
sketch11.setExpression("Constraints[12]", "Params.sketch11_width")
pocket6 = doc.addObject("PartDesign::Pocket", "Pocket005")
body.addObject(pocket6)
pocket6.Profile = sketch11
pocket6.Type = "ThroughAll"
pocket6.Midplane = True
doc.recompute()

fillet3 = doc.addObject("PartDesign::Fillet", "Fillet002")
body.addObject(fillet3)
fillet3.Base = (pocket6, edges_at(pocket6, [(-25, 18.5, 13.5), (25, 18.5, 13.5)]))
fillet3.setExpression("Radius", "Params.fillet3_radius")

doc.recompute()
